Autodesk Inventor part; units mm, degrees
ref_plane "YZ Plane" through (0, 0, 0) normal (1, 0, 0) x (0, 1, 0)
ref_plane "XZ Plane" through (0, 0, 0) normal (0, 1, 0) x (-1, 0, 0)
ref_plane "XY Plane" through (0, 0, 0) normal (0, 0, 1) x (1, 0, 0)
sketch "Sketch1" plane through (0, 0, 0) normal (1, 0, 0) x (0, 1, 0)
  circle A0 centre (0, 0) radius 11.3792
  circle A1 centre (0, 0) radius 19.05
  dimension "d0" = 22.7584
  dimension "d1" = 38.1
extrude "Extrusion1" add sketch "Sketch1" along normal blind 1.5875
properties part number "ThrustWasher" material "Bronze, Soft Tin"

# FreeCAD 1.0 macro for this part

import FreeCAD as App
import Part
import Sketcher
Q = App.Units.Quantity

doc = App.newDocument("Part")
body = doc.addObject("PartDesign::Body", "Body")

# Sketch on YZ plane
sketch1 = doc.addObject("Sketcher::SketchObject", "Sketch")
body.addObject(sketch1)
sketch1.AttachmentSupport = (doc.YZ_Plane, [""])
sketch1.MapMode = "FlatFace"
sketch1.addGeometry([
    Part.Circle(App.Vector(0, 0, 0), App.Vector(0, 0, 1), 19),
    Part.Circle(App.Vector(0, 0, 0), App.Vector(0, 0, 1), 11),
], False)
sketch1.addConstraint([
    Sketcher.Constraint("Coincident", 0, 3, -1, 1),
    Sketcher.Constraint("Coincident", 1, 3, -1, 1),
    Sketcher.Constraint("Diameter", 0, Q("1.5 in")),
    Sketcher.Constraint("Diameter", 1, Q("0.896 in")),
])
pad1 = doc.addObject("PartDesign::Pad", "Pad")
body.addObject(pad1)
pad1.Profile = sketch1
pad1.Length = Q("0.0625 in")

doc.recompute()
